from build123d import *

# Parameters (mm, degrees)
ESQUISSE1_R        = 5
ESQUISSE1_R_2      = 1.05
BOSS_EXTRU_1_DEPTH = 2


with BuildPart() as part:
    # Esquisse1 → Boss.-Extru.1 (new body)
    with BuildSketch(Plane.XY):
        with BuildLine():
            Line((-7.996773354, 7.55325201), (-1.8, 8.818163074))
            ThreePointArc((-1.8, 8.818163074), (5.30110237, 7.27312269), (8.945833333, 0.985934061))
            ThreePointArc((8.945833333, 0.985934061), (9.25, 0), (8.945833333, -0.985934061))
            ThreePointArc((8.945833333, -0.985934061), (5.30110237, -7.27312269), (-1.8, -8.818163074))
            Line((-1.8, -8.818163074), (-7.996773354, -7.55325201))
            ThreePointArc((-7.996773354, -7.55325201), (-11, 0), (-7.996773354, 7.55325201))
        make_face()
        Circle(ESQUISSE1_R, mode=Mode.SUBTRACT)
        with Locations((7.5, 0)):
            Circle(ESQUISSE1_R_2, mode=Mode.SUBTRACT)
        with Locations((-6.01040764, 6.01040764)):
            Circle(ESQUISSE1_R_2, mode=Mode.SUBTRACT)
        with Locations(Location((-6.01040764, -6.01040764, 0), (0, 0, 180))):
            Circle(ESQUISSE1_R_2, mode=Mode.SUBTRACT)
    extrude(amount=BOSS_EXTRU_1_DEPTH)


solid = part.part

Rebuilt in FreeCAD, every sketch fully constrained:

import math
import FreeCAD as App
import Part
import Sketcher

doc = App.newDocument("Part")
body = doc.addObject("PartDesign::Body", "Body")

sketch1 = doc.addObject("Sketcher::SketchObject", "Sketch")
body.addObject(sketch1)
sketch1.AttachmentSupport = (doc.XY_Plane, [""])
sketch1.MapMode = "FlatFace"
sketch1.addGeometry(Part.LineSegment(App.Vector(-1.8, 8.818163, 0), App.Vector(-7.996773, 7.553252, 0)), False)
sketch1.addGeometry(Part.ArcOfCircle(Part.Circle(App.Vector(0, 0, 0), App.Vector(0, 0, 1), 11), math.radians(136.63376), math.radians(223.36624)), False)
sketch1.addGeometry(Part.LineSegment(App.Vector(-7.996773, -7.553252, 0), App.Vector(-1.8, -8.818163, 0)), False)
sketch1.addGeometry(Part.ArcOfCircle(Part.Circle(App.Vector(0, 0, 0), App.Vector(0, 0, 1), 9), math.radians(-101.536959), math.radians(-6.289274)), False)
sketch1.addGeometry(Part.ArcOfCircle(Part.Circle(App.Vector(7.5, 0, 0), App.Vector(0, 0, 1), 1.75), math.radians(-34.290626), math.radians(34.290626)), False)
sketch1.addGeometry(Part.ArcOfCircle(Part.Circle(App.Vector(0, 0, 0), App.Vector(0, 0, 1), 9), math.radians(6.289274), math.radians(101.536959)), False)
sketch1.addGeometry(Part.Circle(App.Vector(7.5, 0, 0), App.Vector(0, 0, 1), 1.05), False)
sketch1.addGeometry(Part.Circle(App.Vector(-6.010408, -6.010408, 0), App.Vector(0, 0, 1), 1.05), False)
sketch1.addGeometry(Part.Circle(App.Vector(0, 0, 0), App.Vector(0, 0, 1), 5), False)
sketch1.addGeometry(Part.Circle(App.Vector(-6.010408, 6.010408, 0), App.Vector(0, 0, 1), 1.05), False)
sketch1.addConstraint(Sketcher.Constraint("Coincident", 0, 2, 1, 1))
sketch1.addConstraint(Sketcher.Constraint("Coincident", 1, 2, 2, 1))
sketch1.addConstraint(Sketcher.Constraint("Tangent", 2, 2, 3, 1))
sketch1.addConstraint(Sketcher.Constraint("Coincident", 3, 2, 4, 1))
sketch1.addConstraint(Sketcher.Constraint("Coincident", 4, 2, 5, 1))
sketch1.addConstraint(Sketcher.Constraint("Tangent", 5, 2, 0, 1))
sketch1.addConstraint(Sketcher.Constraint("Coincident", 1, 3, -1, 1))
sketch1.addConstraint(Sketcher.Constraint("Coincident", 3, 3, -1, 1))
sketch1.addConstraint(Sketcher.Constraint("Coincident", 5, 3, -1, 1))
sketch1.addConstraint(Sketcher.Constraint("Coincident", 8, 3, -1, 1))
sketch1.addConstraint(Sketcher.Constraint("Coincident", 6, 3, 4, 3))
sketch1.addConstraint(Sketcher.Constraint("Equal", 3, 5))
sketch1.addConstraint(Sketcher.Constraint("Equal", 6, 7))
sketch1.addConstraint(Sketcher.Constraint("Equal", 7, 9))
sketch1.addConstraint(Sketcher.Constraint("Symmetric", 7, 3, 9, 3, -1))
sketch1.addConstraint(Sketcher.Constraint("PointOnObject", 4, 3, -1))
sketch1.addConstraint(Sketcher.Constraint("Vertical", 0, 2, 1, 2))
sketch1.addConstraint(Sketcher.Constraint("Diameter", 8, 10.0))
sketch1.addConstraint(Sketcher.Constraint("Radius", 1, 11.0))
sketch1.addConstraint(Sketcher.Constraint("Radius", 3, 9.0))
sketch1.addConstraint(Sketcher.Constraint("Diameter", 6, 2.1))
sketch1.addConstraint(Sketcher.Constraint("Radius", 4, 1.75))
sketch1.addConstraint(Sketcher.Constraint("DistanceX", -1, 1, 4, 3, 7.5))
sketch1.addConstraint(Sketcher.Constraint("DistanceX", 2, 2, -1, 1, 1.8))
sketch1.addConstraint(Sketcher.Constraint("DistanceX", 7, 3, -1, 1, 6.010408))
sketch1.addConstraint(Sketcher.Constraint("DistanceY", 7, 3, -1, 1, 6.010408))
pad1 = doc.addObject("PartDesign::Pad", "Pad")
body.addObject(pad1)
pad1.Profile = sketch1
pad1.Length = 2

doc.recompute()
